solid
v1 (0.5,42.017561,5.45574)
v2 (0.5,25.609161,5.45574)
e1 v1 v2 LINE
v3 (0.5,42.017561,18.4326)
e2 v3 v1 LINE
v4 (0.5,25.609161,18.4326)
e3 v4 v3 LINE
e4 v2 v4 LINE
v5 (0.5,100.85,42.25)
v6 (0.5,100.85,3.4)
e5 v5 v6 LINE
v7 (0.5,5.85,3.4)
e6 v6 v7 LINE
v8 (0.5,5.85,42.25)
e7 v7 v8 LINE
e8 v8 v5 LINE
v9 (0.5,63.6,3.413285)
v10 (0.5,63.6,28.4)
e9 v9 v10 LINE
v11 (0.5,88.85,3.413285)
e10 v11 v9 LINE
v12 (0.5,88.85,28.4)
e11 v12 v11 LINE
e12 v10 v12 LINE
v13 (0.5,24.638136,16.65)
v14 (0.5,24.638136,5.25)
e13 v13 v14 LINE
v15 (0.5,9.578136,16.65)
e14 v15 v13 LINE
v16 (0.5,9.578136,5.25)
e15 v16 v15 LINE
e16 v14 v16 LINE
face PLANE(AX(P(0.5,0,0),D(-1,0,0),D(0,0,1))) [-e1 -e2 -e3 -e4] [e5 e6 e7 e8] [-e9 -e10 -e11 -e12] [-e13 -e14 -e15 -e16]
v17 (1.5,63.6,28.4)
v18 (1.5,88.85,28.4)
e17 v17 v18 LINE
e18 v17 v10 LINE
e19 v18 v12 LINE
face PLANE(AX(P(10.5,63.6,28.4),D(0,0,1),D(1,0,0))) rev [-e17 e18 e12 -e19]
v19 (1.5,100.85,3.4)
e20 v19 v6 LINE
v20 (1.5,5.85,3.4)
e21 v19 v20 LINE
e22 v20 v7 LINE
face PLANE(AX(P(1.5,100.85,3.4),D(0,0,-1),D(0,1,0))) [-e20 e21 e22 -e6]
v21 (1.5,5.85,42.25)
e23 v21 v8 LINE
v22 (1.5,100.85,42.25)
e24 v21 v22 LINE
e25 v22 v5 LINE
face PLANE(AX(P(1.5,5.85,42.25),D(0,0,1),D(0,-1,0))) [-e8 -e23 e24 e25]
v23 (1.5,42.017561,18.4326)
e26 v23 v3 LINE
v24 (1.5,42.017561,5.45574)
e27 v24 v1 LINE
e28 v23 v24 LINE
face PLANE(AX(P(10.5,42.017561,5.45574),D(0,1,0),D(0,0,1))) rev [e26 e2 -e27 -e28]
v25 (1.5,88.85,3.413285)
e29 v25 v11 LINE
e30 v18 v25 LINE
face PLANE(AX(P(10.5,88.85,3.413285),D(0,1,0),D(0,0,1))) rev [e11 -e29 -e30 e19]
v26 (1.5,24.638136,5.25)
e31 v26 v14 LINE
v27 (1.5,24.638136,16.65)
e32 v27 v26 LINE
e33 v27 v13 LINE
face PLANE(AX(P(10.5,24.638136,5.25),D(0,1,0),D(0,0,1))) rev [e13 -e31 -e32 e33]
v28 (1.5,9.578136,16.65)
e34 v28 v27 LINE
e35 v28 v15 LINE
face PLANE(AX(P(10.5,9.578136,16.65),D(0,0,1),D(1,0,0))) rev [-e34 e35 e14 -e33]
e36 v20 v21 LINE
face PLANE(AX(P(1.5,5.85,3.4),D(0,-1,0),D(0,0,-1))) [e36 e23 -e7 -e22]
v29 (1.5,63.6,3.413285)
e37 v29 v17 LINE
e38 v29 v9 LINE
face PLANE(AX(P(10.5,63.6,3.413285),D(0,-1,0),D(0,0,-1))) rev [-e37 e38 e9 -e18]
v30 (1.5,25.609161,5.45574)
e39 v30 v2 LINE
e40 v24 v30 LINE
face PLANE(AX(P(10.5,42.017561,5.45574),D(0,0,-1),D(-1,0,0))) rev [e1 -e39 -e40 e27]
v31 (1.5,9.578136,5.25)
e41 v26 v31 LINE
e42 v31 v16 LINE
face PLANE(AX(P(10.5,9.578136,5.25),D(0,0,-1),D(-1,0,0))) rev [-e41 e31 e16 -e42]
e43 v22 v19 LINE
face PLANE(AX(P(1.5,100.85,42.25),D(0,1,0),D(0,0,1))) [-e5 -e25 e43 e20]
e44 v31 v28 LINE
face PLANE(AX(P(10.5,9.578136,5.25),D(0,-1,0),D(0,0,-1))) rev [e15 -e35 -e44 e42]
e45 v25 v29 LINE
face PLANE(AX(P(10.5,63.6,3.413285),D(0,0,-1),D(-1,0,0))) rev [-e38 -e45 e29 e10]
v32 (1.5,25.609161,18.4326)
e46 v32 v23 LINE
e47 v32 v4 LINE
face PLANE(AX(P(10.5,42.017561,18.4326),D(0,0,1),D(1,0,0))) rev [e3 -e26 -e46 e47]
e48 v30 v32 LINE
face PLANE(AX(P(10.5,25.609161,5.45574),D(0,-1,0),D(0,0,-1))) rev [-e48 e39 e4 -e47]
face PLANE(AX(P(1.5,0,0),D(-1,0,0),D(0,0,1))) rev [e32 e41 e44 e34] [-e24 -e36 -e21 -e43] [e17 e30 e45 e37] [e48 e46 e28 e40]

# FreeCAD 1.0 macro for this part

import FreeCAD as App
import Part
import Sketcher


def add_polygon(sketch, points):
    """Adds a closed chain of lines whose ends are joined by coincident constraints."""
    first, n = sketch.GeometryCount, len(points)
    for a, b in zip(points, points[1:] + points[:1]):
        sketch.addGeometry(Part.LineSegment(App.Vector(*a, 0), App.Vector(*b, 0)), False)
    for i in range(n):
        sketch.addConstraint(Sketcher.Constraint("Coincident", first + i, 2, first + (i + 1) % n, 1))

doc = App.newDocument("Part")
body = doc.addObject("PartDesign::Body", "Body")

sketch1 = doc.addObject("Sketcher::SketchObject", "Sketch")
body.addObject(sketch1)
sketch1.AttachmentSupport = (doc.YZ_Plane, [""])
sketch1.MapMode = "FlatFace"
sketch1.AttachmentOffset = App.Placement(App.Vector(0, 0, 0.5), App.Rotation())
add_polygon(sketch1, [(101, 42), (101, 3), (6, 3), (6, 42)])
sketch1.addConstraint(Sketcher.Constraint("Vertical", 0))
sketch1.addConstraint(Sketcher.Constraint("Horizontal", 1))
sketch1.addConstraint(Sketcher.Constraint("Vertical", 2))
sketch1.addConstraint(Sketcher.Constraint("Horizontal", 3))
sketch1.addConstraint(Sketcher.Constraint("DistanceX", 1, 2, 1, 1, 95.0))
sketch1.addConstraint(Sketcher.Constraint("DistanceY", 0, 2, 0, 1, 38.85))
sketch1.addConstraint(Sketcher.Constraint("DistanceY", -1, 1, 0, 2, 3.4))
sketch1.addConstraint(Sketcher.Constraint("DistanceX", -1, 1, 0, 2, 100.85))
pad1 = doc.addObject("PartDesign::Pad", "Pad")
body.addObject(pad1)
pad1.Profile = sketch1
pad1.Length = 1

sketch2 = doc.addObject("Sketcher::SketchObject", "Sketch001")
body.addObject(sketch2)
sketch2.AttachmentSupport = (doc.YZ_Plane, [""])
sketch2.MapMode = "FlatFace"
sketch2.AttachmentOffset = App.Placement(App.Vector(0, 0, 0.5), App.Rotation())
add_polygon(sketch2, [(25, 5), (10, 5), (10, 17), (25, 17)])
add_polygon(sketch2, [(89, 3), (64, 3), (64, 28), (89, 28)])
add_polygon(sketch2, [(42, 5), (26, 5), (26, 18), (42, 18)])
sketch2.addConstraint(Sketcher.Constraint("Horizontal", 0))
sketch2.addConstraint(Sketcher.Constraint("Vertical", 1))
sketch2.addConstraint(Sketcher.Constraint("Horizontal", 2))
sketch2.addConstraint(Sketcher.Constraint("Vertical", 3))
sketch2.addConstraint(Sketcher.Constraint("Horizontal", 4))
sketch2.addConstraint(Sketcher.Constraint("Vertical", 5))
sketch2.addConstraint(Sketcher.Constraint("Horizontal", 6))
sketch2.addConstraint(Sketcher.Constraint("Vertical", 7))
sketch2.addConstraint(Sketcher.Constraint("Horizontal", 8))
sketch2.addConstraint(Sketcher.Constraint("Vertical", 9))
sketch2.addConstraint(Sketcher.Constraint("Horizontal", 10))
sketch2.addConstraint(Sketcher.Constraint("Vertical", 11))
sketch2.addConstraint(Sketcher.Constraint("DistanceY", 1, 1, 1, 2, 11.4))
sketch2.addConstraint(Sketcher.Constraint("DistanceX", 0, 2, 0, 1, 15.06))
sketch2.addConstraint(Sketcher.Constraint("DistanceX", 4, 2, 4, 1, 25.25))
sketch2.addConstraint(Sketcher.Constraint("DistanceX", -1, 1, 4, 2, 63.6))
sketch2.addConstraint(Sketcher.Constraint("DistanceY", -1, 1, 5, 2, 28.4))
sketch2.addConstraint(Sketcher.Constraint("DistanceY", -1, 1, 0, 2, 5.25))
sketch2.addConstraint(Sketcher.Constraint("DistanceX", 8, 2, 8, 1, 16.4084))
sketch2.addConstraint(Sketcher.Constraint("DistanceY", 9, 1, 9, 2, 12.97686))
sketch2.addConstraint(Sketcher.Constraint("DistanceY", -1, 1, 9, 2, 18.4326))
sketch2.addConstraint(Sketcher.Constraint("DistanceY", 5, 1, 5, 2, 24.986715))
sketch2.addConstraint(Sketcher.Constraint("DistanceX", -1, 1, 8, 2, 25.609161))
sketch2.addConstraint(Sketcher.Constraint("DistanceX", -1, 1, 0, 2, 9.578136))
pocket1 = doc.addObject("PartDesign::Pocket", "Pocket")
body.addObject(pocket1)
pocket1.Profile = sketch2
pocket1.Length = 10
pocket1.Reversed = True

doc.recompute()
